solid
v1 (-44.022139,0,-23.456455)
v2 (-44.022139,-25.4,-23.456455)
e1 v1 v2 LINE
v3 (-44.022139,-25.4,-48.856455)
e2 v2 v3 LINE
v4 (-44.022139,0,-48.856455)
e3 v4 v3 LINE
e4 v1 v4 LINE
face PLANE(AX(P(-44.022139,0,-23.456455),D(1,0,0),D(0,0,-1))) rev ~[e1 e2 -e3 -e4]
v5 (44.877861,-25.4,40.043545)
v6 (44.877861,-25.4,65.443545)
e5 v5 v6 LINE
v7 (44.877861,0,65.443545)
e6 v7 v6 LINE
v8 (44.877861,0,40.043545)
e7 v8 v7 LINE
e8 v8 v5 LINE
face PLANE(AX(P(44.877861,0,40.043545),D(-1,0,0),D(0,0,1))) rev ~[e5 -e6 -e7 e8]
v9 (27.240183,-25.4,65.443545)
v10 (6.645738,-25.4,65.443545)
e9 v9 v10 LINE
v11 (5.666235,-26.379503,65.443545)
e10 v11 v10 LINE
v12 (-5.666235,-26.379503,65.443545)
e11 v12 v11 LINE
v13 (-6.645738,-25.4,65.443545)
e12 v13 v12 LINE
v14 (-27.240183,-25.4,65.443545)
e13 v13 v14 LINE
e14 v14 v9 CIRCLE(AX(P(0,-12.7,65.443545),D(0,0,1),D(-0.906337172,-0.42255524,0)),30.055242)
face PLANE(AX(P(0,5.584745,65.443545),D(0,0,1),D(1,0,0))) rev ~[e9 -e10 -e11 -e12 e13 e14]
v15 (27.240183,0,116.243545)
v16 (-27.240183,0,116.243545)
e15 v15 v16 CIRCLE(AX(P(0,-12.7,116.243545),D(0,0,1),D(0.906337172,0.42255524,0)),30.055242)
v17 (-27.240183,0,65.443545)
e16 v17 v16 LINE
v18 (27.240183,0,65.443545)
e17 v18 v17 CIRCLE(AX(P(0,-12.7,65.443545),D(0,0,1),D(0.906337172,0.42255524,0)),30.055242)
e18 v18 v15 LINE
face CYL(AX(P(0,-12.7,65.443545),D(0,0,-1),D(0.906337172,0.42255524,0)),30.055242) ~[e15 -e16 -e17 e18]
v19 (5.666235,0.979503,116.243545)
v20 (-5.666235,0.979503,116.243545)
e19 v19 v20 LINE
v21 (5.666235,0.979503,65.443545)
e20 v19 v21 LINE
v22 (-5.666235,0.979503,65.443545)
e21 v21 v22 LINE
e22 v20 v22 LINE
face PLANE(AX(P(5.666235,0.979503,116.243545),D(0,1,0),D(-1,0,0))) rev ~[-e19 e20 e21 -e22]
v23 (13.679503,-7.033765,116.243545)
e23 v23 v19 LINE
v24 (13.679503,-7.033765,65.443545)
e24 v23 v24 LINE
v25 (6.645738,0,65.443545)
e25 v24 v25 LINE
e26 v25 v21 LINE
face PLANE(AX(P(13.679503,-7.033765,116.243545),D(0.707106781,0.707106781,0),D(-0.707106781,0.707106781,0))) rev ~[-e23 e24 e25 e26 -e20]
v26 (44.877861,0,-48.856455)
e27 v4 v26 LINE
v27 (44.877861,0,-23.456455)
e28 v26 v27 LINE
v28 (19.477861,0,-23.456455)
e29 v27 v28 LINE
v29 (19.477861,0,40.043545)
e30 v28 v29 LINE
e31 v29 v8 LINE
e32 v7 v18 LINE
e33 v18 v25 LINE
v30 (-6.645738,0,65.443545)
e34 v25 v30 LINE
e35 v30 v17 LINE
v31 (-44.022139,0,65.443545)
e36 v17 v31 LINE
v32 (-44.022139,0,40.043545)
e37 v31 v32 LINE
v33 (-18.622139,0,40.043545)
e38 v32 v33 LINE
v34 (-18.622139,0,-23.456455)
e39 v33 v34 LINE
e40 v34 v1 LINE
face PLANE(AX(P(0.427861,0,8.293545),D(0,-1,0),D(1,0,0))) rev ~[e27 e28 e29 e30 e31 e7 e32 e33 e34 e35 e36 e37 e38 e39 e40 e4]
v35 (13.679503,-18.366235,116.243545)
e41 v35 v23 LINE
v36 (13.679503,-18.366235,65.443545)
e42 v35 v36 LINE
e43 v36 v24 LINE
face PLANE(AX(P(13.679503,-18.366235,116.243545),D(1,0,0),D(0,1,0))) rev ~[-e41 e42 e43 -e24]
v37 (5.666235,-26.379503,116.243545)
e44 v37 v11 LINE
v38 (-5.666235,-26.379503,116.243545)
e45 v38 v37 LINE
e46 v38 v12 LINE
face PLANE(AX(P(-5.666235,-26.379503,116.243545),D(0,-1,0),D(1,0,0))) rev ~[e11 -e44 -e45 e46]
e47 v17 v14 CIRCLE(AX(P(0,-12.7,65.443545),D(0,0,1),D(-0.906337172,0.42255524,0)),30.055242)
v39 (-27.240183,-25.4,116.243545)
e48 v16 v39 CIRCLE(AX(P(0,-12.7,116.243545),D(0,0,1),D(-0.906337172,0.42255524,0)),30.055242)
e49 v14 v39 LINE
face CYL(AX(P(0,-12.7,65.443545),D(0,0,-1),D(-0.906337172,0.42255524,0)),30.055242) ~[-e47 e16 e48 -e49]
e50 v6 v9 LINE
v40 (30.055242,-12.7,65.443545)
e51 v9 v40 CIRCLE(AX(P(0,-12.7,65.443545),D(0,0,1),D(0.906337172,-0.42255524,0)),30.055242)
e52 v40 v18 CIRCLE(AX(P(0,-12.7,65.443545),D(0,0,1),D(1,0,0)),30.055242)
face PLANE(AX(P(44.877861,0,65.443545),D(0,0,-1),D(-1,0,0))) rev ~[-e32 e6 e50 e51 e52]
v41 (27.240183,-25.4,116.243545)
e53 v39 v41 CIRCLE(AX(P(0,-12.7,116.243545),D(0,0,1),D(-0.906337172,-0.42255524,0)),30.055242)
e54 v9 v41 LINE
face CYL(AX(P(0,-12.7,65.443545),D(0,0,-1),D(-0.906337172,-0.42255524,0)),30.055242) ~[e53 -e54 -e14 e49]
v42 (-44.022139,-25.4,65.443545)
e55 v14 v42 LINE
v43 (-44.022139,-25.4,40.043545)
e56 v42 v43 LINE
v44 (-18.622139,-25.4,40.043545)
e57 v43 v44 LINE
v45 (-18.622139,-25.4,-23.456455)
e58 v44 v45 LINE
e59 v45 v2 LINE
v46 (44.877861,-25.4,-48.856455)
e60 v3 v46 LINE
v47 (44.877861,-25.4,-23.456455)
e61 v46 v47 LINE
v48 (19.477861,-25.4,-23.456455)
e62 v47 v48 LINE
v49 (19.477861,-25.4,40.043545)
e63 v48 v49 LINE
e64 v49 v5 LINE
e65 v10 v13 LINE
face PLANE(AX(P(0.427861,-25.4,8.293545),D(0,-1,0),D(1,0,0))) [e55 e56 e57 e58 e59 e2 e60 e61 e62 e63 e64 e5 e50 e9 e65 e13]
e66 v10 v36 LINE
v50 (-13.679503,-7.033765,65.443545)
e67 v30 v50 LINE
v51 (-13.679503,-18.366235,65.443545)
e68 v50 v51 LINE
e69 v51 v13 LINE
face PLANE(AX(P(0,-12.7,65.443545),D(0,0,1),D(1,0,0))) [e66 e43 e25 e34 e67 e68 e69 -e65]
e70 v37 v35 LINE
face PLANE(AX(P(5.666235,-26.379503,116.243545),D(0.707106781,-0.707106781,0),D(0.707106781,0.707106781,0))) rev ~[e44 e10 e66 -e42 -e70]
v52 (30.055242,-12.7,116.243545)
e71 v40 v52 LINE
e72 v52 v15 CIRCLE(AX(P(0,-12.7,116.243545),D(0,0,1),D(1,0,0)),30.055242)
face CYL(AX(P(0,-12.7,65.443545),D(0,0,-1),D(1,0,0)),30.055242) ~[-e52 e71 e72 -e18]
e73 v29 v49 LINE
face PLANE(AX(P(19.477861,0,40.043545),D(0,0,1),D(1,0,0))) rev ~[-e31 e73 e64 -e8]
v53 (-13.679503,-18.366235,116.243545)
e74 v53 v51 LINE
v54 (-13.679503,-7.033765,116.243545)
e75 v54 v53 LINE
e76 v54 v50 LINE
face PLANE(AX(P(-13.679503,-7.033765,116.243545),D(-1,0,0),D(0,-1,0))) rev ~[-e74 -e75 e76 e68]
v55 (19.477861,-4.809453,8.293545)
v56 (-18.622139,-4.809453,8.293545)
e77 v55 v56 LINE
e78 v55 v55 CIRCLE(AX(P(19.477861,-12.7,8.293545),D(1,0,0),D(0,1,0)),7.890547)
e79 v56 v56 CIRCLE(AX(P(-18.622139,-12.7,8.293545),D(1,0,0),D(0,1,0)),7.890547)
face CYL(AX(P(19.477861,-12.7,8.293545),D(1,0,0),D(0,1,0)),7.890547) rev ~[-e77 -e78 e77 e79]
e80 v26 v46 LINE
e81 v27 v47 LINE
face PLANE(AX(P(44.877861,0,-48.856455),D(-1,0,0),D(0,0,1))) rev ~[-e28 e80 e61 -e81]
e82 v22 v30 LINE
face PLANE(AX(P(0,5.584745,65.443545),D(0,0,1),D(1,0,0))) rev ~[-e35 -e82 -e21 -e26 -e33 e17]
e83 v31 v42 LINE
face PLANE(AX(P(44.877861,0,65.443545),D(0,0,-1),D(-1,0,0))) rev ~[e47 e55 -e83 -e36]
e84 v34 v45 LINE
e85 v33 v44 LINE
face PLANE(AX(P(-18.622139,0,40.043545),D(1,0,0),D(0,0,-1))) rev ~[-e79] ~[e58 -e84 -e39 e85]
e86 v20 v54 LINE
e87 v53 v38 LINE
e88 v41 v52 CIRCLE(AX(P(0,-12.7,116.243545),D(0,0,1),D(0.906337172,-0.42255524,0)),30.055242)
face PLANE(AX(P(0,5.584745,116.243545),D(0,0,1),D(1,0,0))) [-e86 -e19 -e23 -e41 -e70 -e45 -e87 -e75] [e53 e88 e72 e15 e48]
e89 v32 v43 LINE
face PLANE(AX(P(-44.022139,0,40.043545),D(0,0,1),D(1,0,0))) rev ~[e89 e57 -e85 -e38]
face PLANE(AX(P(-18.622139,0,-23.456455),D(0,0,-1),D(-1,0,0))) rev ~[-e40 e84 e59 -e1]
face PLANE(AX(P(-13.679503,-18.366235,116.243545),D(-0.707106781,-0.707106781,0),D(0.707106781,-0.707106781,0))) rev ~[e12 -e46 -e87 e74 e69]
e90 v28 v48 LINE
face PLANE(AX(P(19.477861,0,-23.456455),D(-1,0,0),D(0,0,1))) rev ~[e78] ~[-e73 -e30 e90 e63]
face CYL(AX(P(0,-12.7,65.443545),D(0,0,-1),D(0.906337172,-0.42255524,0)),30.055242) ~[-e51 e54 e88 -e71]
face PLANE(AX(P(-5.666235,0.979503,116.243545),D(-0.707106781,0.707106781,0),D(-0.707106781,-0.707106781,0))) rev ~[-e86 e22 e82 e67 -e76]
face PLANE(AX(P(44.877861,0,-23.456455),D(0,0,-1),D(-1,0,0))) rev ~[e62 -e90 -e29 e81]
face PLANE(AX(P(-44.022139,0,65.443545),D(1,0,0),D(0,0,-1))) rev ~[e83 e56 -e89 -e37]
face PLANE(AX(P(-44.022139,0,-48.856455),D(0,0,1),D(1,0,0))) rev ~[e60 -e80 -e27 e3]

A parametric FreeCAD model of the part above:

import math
import FreeCAD as App
import Part
import Sketcher
Q = App.Units.Quantity

doc = App.newDocument("Part")
body = doc.addObject("PartDesign::Body", "Body")

sketch1 = body.newObject("Sketcher::SketchObject", "Sketch")
sketch1.AttachmentSupport = (doc.getObject("XZ_Plane"), [""])
sketch1.MapMode = "FlatFace"
sketch1.addGeometry([
    Part.LineSegment(App.Vector(-44, -23, 0), App.Vector(-44, -49, 0)),
    Part.LineSegment(App.Vector(-44, -49, 0), App.Vector(45, -49, 0)),
    Part.LineSegment(App.Vector(45, -49, 0), App.Vector(45, -23, 0)),
    Part.LineSegment(App.Vector(45, -23, 0), App.Vector(19, -23, 0)),
    Part.LineSegment(App.Vector(19, -23, 0), App.Vector(19, 40, 0)),
    Part.LineSegment(App.Vector(19, 40, 0), App.Vector(45, 40, 0)),
    Part.LineSegment(App.Vector(45, 40, 0), App.Vector(45, 65, 0)),
    Part.LineSegment(App.Vector(45, 65, 0), App.Vector(-44, 65, 0)),
    Part.LineSegment(App.Vector(-44, 65, 0), App.Vector(-44, 40, 0)),
    Part.LineSegment(App.Vector(-44, 40, 0), App.Vector(-19, 40, 0)),
    Part.LineSegment(App.Vector(-19, 40, 0), App.Vector(-19, -23, 0)),
    Part.LineSegment(App.Vector(-19, -23, 0), App.Vector(-44, -23, 0)),
], False)
sketch1.addConstraint([
    Sketcher.Constraint("Coincident", 0, 2, 1, 1),
    Sketcher.Constraint("Coincident", 1, 2, 2, 1),
    Sketcher.Constraint("Coincident", 2, 2, 3, 1),
    Sketcher.Constraint("Coincident", 3, 2, 4, 1),
    Sketcher.Constraint("Coincident", 4, 2, 5, 1),
    Sketcher.Constraint("Coincident", 5, 2, 6, 1),
    Sketcher.Constraint("Coincident", 6, 2, 7, 1),
    Sketcher.Constraint("Coincident", 7, 2, 8, 1),
    Sketcher.Constraint("Coincident", 8, 2, 9, 1),
    Sketcher.Constraint("Coincident", 9, 2, 10, 1),
    Sketcher.Constraint("Coincident", 10, 2, 11, 1),
    Sketcher.Constraint("Coincident", 11, 2, 0, 1),
    Sketcher.Constraint("Vertical", 0),
    Sketcher.Constraint("Horizontal", 1),
    Sketcher.Constraint("Vertical", 2),
    Sketcher.Constraint("Horizontal", 3),
    Sketcher.Constraint("Vertical", 4),
    Sketcher.Constraint("Horizontal", 5),
    Sketcher.Constraint("Vertical", 6),
    Sketcher.Constraint("Horizontal", 7),
    Sketcher.Constraint("Vertical", 8),
    Sketcher.Constraint("Horizontal", 9),
    Sketcher.Constraint("Vertical", 10),
    Sketcher.Constraint("Horizontal", 11),
    Sketcher.Constraint("Horizontal", 5, 2, 8, 2),
    Sketcher.Constraint("Horizontal", 3, 2, 10, 2),
    Sketcher.Constraint("Vertical", 2, 2, 5, 2),
    Sketcher.Constraint("Vertical", 0, 2, 7, 2),
    Sketcher.Constraint("Equal", 5, 9),
    Sketcher.Constraint("Equal", 11, 0),
    Sketcher.Constraint("Equal", 2, 6),
    Sketcher.Constraint("DistanceX", 3, 2, 3, 1, Q("1 in")),
    Sketcher.Constraint("DistanceX", 1, 1, 1, 2, Q("3.5 in")),
    Sketcher.Constraint("DistanceY", 4, 1, 4, 2, Q("2.5 in")),
    Sketcher.Constraint("DistanceX", 0, 2, -1, 1, Q("44.022139 mm")),
    Sketcher.Constraint("DistanceY", 0, 2, -1, 1, Q("48.856455 mm")),
])
pad1 = body.newObject("PartDesign::Pad", "Pad")
pad1.Profile = sketch1
pad1.Length = Q("1 in")

sketch2 = body.newObject("Sketcher::SketchObject", "Sketch001")
sketch2.AttachmentSupport = (doc.getObject("YZ_Plane"), [""])
sketch2.MapMode = "FlatFace"
sketch2.AttachmentOffset = App.Placement(App.Vector(0, 0, 19.477861), App.Rotation())
sketch2.addGeometry(Part.Circle(App.Vector(-13, 8, 0), App.Vector(0, 0, 1), 8), False)
sketch2.addConstraint([
    Sketcher.Constraint("DistanceX", 0, 3, -1, 1, Q("0.5 in")),
    Sketcher.Constraint("Diameter", 0, Q("15.781093 mm")),
    Sketcher.Constraint("DistanceY", -1, 1, 0, 3, Q("8.293545 mm")),
])
pocket1 = body.newObject("PartDesign::Pocket", "Pocket")
pocket1.Profile = sketch2
pocket1.Type = "ThroughAll"

sketch3 = body.newObject("Sketcher::SketchObject", "Sketch002")
sketch3.AttachmentSupport = (doc.getObject("XY_Plane"), [""])
sketch3.MapMode = "FlatFace"
sketch3.AttachmentOffset = App.Placement(App.Vector(0, 0, 65.443545), App.Rotation())
sketch3.addGeometry([
    Part.ArcOfCircle(Part.Circle(App.Vector(0, -13, 0), App.Vector(0, 0, 1), 30), math.radians(25), math.radians(155)),
    Part.ArcOfCircle(Part.Circle(App.Vector(0, -13, 0), App.Vector(0, 0, 1), 30), math.radians(155), math.radians(205)),
    Part.ArcOfCircle(Part.Circle(App.Vector(0, -13, 0), App.Vector(0, 0, 1), 30), math.radians(-155), math.radians(-25)),
    Part.ArcOfCircle(Part.Circle(App.Vector(0, -13, 0), App.Vector(0, 0, 1), 30), math.radians(-25), math.radians(0)),
    Part.ArcOfCircle(Part.Circle(App.Vector(0, -13, 0), App.Vector(0, 0, 1), 30), math.radians(0), math.radians(25)),
], False)
sketch3.addConstraint([
    Sketcher.Constraint("Tangent", 0, 2, 1, 1),
    Sketcher.Constraint("Tangent", 1, 2, 2, 1),
    Sketcher.Constraint("Tangent", 2, 2, 3, 1),
    Sketcher.Constraint("Tangent", 3, 2, 4, 1),
    Sketcher.Constraint("Tangent", 4, 2, 0, 1),
    Sketcher.Constraint("Coincident", 2, 3, 0, 3),
    Sketcher.Constraint("Symmetric", 0, 2, 4, 2, -1, 1),
    Sketcher.Constraint("Symmetric", 1, 2, 2, 2, -2),
    Sketcher.Constraint("Horizontal", 4, 3, 3, 2),
    Sketcher.Constraint("Vertical", 0, 2, 1, 2),
    Sketcher.Constraint("DistanceY", 1, 2, -1, 1, Q("1 in")),
    Sketcher.Constraint("Radius", 0, Q("30.055242 mm")),
])
pad2 = body.newObject("PartDesign::Pad", "Pad001")
pad2.Profile = sketch3
pad2.Length = Q("2 in")

sketch4 = body.newObject("Sketcher::SketchObject", "Sketch003")
sketch4.AttachmentSupport = (doc.getObject("XY_Plane"), [""])
sketch4.MapMode = "FlatFace"
sketch4.AttachmentOffset = App.Placement(App.Vector(0, 0, 116.243545), App.Rotation())
sketch4.addGeometry([
    Part.LineSegment(App.Vector(14, -18, 0), App.Vector(14, -7, 0)),
    Part.LineSegment(App.Vector(14, -7, 0), App.Vector(6, 1, 0)),
    Part.LineSegment(App.Vector(6, 1, 0), App.Vector(-6, 1, 0)),
    Part.LineSegment(App.Vector(-6, 1, 0), App.Vector(-14, -7, 0)),
    Part.LineSegment(App.Vector(-14, -7, 0), App.Vector(-14, -18, 0)),
    Part.LineSegment(App.Vector(-14, -18, 0), App.Vector(-6, -26, 0)),
    Part.LineSegment(App.Vector(-6, -26, 0), App.Vector(6, -26, 0)),
    Part.LineSegment(App.Vector(6, -26, 0), App.Vector(14, -18, 0)),
], False)
sketch4.addConstraint([
    Sketcher.Constraint("Coincident", 0, 2, 1, 1),
    Sketcher.Constraint("Coincident", 1, 2, 2, 1),
    Sketcher.Constraint("Coincident", 2, 2, 3, 1),
    Sketcher.Constraint("Coincident", 3, 2, 4, 1),
    Sketcher.Constraint("Coincident", 4, 2, 5, 1),
    Sketcher.Constraint("Coincident", 5, 2, 6, 1),
    Sketcher.Constraint("Coincident", 6, 2, 7, 1),
    Sketcher.Constraint("Coincident", 7, 2, 0, 1),
    Sketcher.Constraint("Vertical", 0),
    Sketcher.Constraint("Horizontal", 2),
    Sketcher.Constraint("Vertical", 4),
    Sketcher.Constraint("Horizontal", 6),
    Sketcher.Constraint("Symmetric", 0, 2, 3, 2, -2),
    Sketcher.Constraint("Perpendicular", 1, 3),
    Sketcher.Constraint("Perpendicular", 3, 5),
    Sketcher.Constraint("Perpendicular", 5, 7),
    Sketcher.Constraint("Horizontal", 4, 2, 7, 2),
    Sketcher.Constraint("Vertical", 2, 2, 5, 2),
    Sketcher.Constraint("Vertical", 1, 2, 6, 2),
    Sketcher.Constraint("Equal", 6, 0),
    Sketcher.Constraint("DistanceX", 2, 2, 2, 1, Q("11.332471 mm")),
    Sketcher.Constraint("Distance", 1, Q("11.332471 mm")),
    Sketcher.Constraint("DistanceY", 0, 2, -1, 1, Q("7.033765 mm")),
])
pocket2 = body.newObject("PartDesign::Pocket", "Pocket001")
pocket2.Profile = sketch4
pocket2.Length = Q("2 in")

doc.recompute()
